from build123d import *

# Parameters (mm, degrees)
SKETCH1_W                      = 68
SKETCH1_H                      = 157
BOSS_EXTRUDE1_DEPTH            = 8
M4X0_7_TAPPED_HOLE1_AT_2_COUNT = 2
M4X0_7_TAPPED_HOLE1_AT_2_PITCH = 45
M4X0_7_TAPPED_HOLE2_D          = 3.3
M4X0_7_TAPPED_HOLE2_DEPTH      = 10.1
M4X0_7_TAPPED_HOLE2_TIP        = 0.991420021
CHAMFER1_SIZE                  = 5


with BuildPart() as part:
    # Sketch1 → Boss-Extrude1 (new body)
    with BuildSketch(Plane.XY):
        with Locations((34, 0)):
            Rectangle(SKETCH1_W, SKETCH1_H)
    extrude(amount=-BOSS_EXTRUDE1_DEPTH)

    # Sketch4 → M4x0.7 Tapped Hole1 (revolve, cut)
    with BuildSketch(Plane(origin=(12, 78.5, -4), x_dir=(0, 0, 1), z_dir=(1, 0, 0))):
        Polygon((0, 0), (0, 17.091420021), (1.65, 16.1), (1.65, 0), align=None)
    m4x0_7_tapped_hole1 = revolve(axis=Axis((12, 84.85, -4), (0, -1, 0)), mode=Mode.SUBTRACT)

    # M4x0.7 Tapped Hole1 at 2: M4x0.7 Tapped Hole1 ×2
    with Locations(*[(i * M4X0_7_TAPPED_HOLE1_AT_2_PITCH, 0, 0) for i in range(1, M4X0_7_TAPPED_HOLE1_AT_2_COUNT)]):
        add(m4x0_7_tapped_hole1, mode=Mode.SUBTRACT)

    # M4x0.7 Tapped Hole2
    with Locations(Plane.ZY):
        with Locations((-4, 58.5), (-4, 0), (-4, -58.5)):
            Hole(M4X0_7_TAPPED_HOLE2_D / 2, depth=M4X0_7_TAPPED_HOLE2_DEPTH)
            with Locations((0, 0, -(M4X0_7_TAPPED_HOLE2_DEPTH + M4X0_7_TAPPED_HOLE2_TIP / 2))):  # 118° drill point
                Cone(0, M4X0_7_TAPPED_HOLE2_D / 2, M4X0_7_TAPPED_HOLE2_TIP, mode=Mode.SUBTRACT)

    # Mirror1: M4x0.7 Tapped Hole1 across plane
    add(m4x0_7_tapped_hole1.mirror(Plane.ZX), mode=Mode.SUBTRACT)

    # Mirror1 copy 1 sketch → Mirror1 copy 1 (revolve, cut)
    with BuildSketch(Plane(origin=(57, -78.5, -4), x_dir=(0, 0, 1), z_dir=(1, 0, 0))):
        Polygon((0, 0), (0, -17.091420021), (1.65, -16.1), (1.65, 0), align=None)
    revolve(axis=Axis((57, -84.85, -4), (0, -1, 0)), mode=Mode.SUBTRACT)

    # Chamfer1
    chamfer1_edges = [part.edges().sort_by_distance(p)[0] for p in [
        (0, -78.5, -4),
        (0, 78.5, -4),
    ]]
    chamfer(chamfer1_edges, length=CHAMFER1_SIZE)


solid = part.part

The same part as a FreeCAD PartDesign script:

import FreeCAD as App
import Part
import Sketcher
from FreeCAD import Vector
Q = App.Units.Quantity


def edges_at(feature, points):
    """Names of the edges that pass closest to the given points."""
    edges = feature.Shape.Edges
    near = lambda p: min(range(len(edges)), key=lambda i: edges[i].distToShape(Part.Vertex(*p))[0])
    return sorted({f"Edge{near(p) + 1}" for p in points})

doc = App.newDocument("Part")
body = doc.addObject("PartDesign::Body", "Body")

sketch1 = body.newObject("Sketcher::SketchObject", "Sketch")
sketch1.AttachmentSupport = (doc.getObject("XY_Plane"), [""])
sketch1.MapMode = "FlatFace"
sketch1.addGeometry([
    Part.LineSegment(Vector(0, 78.5, 0), Vector(0, -78.5, 0)),
    Part.LineSegment(Vector(0, -78.5, 0), Vector(68, -78.5, 0)),
    Part.LineSegment(Vector(68, -78.5, 0), Vector(68, 78.5, 0)),
    Part.LineSegment(Vector(68, 78.5, 0), Vector(0, 78.5, 0)),
], False)
sketch1.addConstraint([
    Sketcher.Constraint("Coincident", 0, 2, 1, 1),
    Sketcher.Constraint("Coincident", 1, 2, 2, 1),
    Sketcher.Constraint("Coincident", 2, 2, 3, 1),
    Sketcher.Constraint("Coincident", 3, 2, 0, 1),
    Sketcher.Constraint("Vertical", 0),
    Sketcher.Constraint("Horizontal", 1),
    Sketcher.Constraint("Vertical", 2),
    Sketcher.Constraint("Horizontal", 3),
    Sketcher.Constraint("Symmetric", 0, 2, 3, 2, -1, 1),
    Sketcher.Constraint("DistanceX", 1, 1, 1, 2, Q("68 mm")),
    Sketcher.Constraint("DistanceY", 0, 2, 0, 1, Q("157 mm")),
])
pad1 = body.newObject("PartDesign::Pad", "Pad")
pad1.Profile = sketch1
pad1.Length = 8
pad1.Reversed = True

sketch2 = body.newObject("Sketcher::SketchObject", "Sketch001")
sketch2.AttachmentSupport = (doc.getObject("YZ_Plane"), [""])
sketch2.MapMode = "FlatFace"
sketch2.AttachmentOffset = App.Placement(Vector(0, 0, 12), App.Rotation())
sketch2.addGeometry([
    Part.LineSegment(Vector(61.40858, -4, 0), Vector(78.5, -4, 0)),
    Part.LineSegment(Vector(78.5, -4, 0), Vector(78.5, -2.35, 0)),
    Part.LineSegment(Vector(78.5, -2.35, 0), Vector(62.4, -2.35, 0)),
    Part.LineSegment(Vector(62.4, -2.35, 0), Vector(61.40858, -4, 0)),
], False)
sketch2.addGeometry(Part.LineSegment(Vector(78.5, -4, 0), Vector(61.40858, -4, 0)), True)
sketch2.addConstraint([
    Sketcher.Constraint("Coincident", 0, 2, 1, 1),
    Sketcher.Constraint("Coincident", 1, 2, 2, 1),
    Sketcher.Constraint("Coincident", 2, 2, 3, 1),
    Sketcher.Constraint("Coincident", 3, 2, 0, 1),
    Sketcher.Constraint("Horizontal", 0),
    Sketcher.Constraint("Vertical", 1),
    Sketcher.Constraint("Horizontal", 2),
    Sketcher.Constraint("Horizontal", 4),
    Sketcher.Constraint("Coincident", 4, 1, 0, 2),
    Sketcher.Constraint("Equal", 0, 4),
    Sketcher.Constraint("Angle", 3, Q("-121 deg")),
    Sketcher.Constraint("DistanceX", 2, 2, 2, 1, Q("16.1 mm")),
    Sketcher.Constraint("DistanceY", 0, 2, -1, 1, Q("4 mm")),
    Sketcher.Constraint("DistanceY", 1, 1, 1, 2, Q("1.65 mm")),
    Sketcher.Constraint("DistanceX", -1, 1, 0, 2, Q("78.5 mm")),
])
groove = body.newObject("PartDesign::Groove", "Groove")
groove.Profile = sketch2
groove.ReferenceAxis = (sketch2, ["Axis0"])
groove.Angle = 360
doc.recompute()

linearpattern = body.newObject("PartDesign::LinearPattern", "LinearPattern")
linearpattern.Originals = [groove]
linearpattern.Direction = (doc.getObject("X_Axis"), [""])
linearpattern.Mode = "offset"
linearpattern.Offset = 45
linearpattern.Occurrences = 2
body.Tip = linearpattern

sketch3 = body.newObject("Sketcher::SketchObject", "Sketch002")
sketch3.AttachmentSupport = (doc.getObject("YZ_Plane"), [""])
sketch3.MapMode = "FlatFace"
sketch3.addGeometry([
    Part.Circle(Vector(58.5, -4, 0), Vector(0, 0, 1), 1.65),
    Part.Circle(Vector(0, -4, 0), Vector(0, 0, 1), 1.65),
    Part.Circle(Vector(-58.5, -4, 0), Vector(0, 0, 1), 1.65),
], False)
sketch3.addConstraint([
    Sketcher.Constraint("Equal", 0, 1),
    Sketcher.Constraint("Equal", 1, 2),
    Sketcher.Constraint("Symmetric", 0, 3, 2, 3, -2),
    Sketcher.Constraint("PointOnObject", 1, 3, -2),
    Sketcher.Constraint("Horizontal", 0, 3, 1, 3),
    Sketcher.Constraint("Diameter", 0, Q("3.3 mm")),
    Sketcher.Constraint("DistanceY", 0, 3, -1, 1, Q("4 mm")),
    Sketcher.Constraint("DistanceX", 2, 3, 0, 3, Q("117 mm")),
])
doc.recompute()
hole = body.newObject("PartDesign::Hole", "Hole")
hole.Profile = sketch3
hole.ThreadType = "None"
hole.Diameter = 3.3
hole.DepthType = "Dimension"
hole.Depth = 10.1
hole.DrillPoint = "Angled"
hole.DrillPointAngle = 118
hole.Reversed = True
doc.recompute()

mirrored = body.newObject("PartDesign::Mirrored", "Mirrored")
mirrored.Originals = [groove]
mirrored.MirrorPlane = (doc.getObject("XZ_Plane"), [""])
body.Tip = mirrored

sketch4 = body.newObject("Sketcher::SketchObject", "Sketch003")
sketch4.AttachmentSupport = (doc.getObject("YZ_Plane"), [""])
sketch4.MapMode = "FlatFace"
sketch4.AttachmentOffset = App.Placement(Vector(0, 0, 57), App.Rotation())
sketch4.addGeometry([
    Part.LineSegment(Vector(-78.5, -4, 0), Vector(-61.40858, -4, 0)),
    Part.LineSegment(Vector(-61.40858, -4, 0), Vector(-62.4, -2.35, 0)),
    Part.LineSegment(Vector(-62.4, -2.35, 0), Vector(-78.5, -2.35, 0)),
    Part.LineSegment(Vector(-78.5, -2.35, 0), Vector(-78.5, -4, 0)),
], False)
sketch4.addGeometry(Part.LineSegment(Vector(-61.40858, -4, 0), Vector(-78.5, -4, 0)), True)
sketch4.addConstraint([
    Sketcher.Constraint("Coincident", 0, 2, 1, 1),
    Sketcher.Constraint("Coincident", 1, 2, 2, 1),
    Sketcher.Constraint("Coincident", 2, 2, 3, 1),
    Sketcher.Constraint("Coincident", 3, 2, 0, 1),
    Sketcher.Constraint("Horizontal", 0),
    Sketcher.Constraint("Horizontal", 2),
    Sketcher.Constraint("Vertical", 3),
    Sketcher.Constraint("Horizontal", 4),
    Sketcher.Constraint("Coincident", 4, 1, 0, 2),
    Sketcher.Constraint("Vertical", 2, 2, 4, 2),
    Sketcher.Constraint("Angle", 1, Q("121 deg")),
    Sketcher.Constraint("DistanceX", 2, 2, 2, 1, Q("16.1 mm")),
    Sketcher.Constraint("DistanceY", 0, 2, -1, 1, Q("4 mm")),
    Sketcher.Constraint("DistanceY", 3, 2, 3, 1, Q("1.65 mm")),
    Sketcher.Constraint("DistanceX", 1, 2, -1, 1, Q("62.4 mm")),
])
groove2 = body.newObject("PartDesign::Groove", "Groove001")
groove2.Profile = sketch4
groove2.ReferenceAxis = (sketch4, ["Axis0"])
groove2.Angle = 360
doc.recompute()

chamfer = body.newObject("PartDesign::Chamfer", "Chamfer")
chamfer.Base = (groove2, edges_at(groove2, [(0, -78.5, -4), (0, 78.5, -4)]))
chamfer.Size = 5

doc.recompute()
